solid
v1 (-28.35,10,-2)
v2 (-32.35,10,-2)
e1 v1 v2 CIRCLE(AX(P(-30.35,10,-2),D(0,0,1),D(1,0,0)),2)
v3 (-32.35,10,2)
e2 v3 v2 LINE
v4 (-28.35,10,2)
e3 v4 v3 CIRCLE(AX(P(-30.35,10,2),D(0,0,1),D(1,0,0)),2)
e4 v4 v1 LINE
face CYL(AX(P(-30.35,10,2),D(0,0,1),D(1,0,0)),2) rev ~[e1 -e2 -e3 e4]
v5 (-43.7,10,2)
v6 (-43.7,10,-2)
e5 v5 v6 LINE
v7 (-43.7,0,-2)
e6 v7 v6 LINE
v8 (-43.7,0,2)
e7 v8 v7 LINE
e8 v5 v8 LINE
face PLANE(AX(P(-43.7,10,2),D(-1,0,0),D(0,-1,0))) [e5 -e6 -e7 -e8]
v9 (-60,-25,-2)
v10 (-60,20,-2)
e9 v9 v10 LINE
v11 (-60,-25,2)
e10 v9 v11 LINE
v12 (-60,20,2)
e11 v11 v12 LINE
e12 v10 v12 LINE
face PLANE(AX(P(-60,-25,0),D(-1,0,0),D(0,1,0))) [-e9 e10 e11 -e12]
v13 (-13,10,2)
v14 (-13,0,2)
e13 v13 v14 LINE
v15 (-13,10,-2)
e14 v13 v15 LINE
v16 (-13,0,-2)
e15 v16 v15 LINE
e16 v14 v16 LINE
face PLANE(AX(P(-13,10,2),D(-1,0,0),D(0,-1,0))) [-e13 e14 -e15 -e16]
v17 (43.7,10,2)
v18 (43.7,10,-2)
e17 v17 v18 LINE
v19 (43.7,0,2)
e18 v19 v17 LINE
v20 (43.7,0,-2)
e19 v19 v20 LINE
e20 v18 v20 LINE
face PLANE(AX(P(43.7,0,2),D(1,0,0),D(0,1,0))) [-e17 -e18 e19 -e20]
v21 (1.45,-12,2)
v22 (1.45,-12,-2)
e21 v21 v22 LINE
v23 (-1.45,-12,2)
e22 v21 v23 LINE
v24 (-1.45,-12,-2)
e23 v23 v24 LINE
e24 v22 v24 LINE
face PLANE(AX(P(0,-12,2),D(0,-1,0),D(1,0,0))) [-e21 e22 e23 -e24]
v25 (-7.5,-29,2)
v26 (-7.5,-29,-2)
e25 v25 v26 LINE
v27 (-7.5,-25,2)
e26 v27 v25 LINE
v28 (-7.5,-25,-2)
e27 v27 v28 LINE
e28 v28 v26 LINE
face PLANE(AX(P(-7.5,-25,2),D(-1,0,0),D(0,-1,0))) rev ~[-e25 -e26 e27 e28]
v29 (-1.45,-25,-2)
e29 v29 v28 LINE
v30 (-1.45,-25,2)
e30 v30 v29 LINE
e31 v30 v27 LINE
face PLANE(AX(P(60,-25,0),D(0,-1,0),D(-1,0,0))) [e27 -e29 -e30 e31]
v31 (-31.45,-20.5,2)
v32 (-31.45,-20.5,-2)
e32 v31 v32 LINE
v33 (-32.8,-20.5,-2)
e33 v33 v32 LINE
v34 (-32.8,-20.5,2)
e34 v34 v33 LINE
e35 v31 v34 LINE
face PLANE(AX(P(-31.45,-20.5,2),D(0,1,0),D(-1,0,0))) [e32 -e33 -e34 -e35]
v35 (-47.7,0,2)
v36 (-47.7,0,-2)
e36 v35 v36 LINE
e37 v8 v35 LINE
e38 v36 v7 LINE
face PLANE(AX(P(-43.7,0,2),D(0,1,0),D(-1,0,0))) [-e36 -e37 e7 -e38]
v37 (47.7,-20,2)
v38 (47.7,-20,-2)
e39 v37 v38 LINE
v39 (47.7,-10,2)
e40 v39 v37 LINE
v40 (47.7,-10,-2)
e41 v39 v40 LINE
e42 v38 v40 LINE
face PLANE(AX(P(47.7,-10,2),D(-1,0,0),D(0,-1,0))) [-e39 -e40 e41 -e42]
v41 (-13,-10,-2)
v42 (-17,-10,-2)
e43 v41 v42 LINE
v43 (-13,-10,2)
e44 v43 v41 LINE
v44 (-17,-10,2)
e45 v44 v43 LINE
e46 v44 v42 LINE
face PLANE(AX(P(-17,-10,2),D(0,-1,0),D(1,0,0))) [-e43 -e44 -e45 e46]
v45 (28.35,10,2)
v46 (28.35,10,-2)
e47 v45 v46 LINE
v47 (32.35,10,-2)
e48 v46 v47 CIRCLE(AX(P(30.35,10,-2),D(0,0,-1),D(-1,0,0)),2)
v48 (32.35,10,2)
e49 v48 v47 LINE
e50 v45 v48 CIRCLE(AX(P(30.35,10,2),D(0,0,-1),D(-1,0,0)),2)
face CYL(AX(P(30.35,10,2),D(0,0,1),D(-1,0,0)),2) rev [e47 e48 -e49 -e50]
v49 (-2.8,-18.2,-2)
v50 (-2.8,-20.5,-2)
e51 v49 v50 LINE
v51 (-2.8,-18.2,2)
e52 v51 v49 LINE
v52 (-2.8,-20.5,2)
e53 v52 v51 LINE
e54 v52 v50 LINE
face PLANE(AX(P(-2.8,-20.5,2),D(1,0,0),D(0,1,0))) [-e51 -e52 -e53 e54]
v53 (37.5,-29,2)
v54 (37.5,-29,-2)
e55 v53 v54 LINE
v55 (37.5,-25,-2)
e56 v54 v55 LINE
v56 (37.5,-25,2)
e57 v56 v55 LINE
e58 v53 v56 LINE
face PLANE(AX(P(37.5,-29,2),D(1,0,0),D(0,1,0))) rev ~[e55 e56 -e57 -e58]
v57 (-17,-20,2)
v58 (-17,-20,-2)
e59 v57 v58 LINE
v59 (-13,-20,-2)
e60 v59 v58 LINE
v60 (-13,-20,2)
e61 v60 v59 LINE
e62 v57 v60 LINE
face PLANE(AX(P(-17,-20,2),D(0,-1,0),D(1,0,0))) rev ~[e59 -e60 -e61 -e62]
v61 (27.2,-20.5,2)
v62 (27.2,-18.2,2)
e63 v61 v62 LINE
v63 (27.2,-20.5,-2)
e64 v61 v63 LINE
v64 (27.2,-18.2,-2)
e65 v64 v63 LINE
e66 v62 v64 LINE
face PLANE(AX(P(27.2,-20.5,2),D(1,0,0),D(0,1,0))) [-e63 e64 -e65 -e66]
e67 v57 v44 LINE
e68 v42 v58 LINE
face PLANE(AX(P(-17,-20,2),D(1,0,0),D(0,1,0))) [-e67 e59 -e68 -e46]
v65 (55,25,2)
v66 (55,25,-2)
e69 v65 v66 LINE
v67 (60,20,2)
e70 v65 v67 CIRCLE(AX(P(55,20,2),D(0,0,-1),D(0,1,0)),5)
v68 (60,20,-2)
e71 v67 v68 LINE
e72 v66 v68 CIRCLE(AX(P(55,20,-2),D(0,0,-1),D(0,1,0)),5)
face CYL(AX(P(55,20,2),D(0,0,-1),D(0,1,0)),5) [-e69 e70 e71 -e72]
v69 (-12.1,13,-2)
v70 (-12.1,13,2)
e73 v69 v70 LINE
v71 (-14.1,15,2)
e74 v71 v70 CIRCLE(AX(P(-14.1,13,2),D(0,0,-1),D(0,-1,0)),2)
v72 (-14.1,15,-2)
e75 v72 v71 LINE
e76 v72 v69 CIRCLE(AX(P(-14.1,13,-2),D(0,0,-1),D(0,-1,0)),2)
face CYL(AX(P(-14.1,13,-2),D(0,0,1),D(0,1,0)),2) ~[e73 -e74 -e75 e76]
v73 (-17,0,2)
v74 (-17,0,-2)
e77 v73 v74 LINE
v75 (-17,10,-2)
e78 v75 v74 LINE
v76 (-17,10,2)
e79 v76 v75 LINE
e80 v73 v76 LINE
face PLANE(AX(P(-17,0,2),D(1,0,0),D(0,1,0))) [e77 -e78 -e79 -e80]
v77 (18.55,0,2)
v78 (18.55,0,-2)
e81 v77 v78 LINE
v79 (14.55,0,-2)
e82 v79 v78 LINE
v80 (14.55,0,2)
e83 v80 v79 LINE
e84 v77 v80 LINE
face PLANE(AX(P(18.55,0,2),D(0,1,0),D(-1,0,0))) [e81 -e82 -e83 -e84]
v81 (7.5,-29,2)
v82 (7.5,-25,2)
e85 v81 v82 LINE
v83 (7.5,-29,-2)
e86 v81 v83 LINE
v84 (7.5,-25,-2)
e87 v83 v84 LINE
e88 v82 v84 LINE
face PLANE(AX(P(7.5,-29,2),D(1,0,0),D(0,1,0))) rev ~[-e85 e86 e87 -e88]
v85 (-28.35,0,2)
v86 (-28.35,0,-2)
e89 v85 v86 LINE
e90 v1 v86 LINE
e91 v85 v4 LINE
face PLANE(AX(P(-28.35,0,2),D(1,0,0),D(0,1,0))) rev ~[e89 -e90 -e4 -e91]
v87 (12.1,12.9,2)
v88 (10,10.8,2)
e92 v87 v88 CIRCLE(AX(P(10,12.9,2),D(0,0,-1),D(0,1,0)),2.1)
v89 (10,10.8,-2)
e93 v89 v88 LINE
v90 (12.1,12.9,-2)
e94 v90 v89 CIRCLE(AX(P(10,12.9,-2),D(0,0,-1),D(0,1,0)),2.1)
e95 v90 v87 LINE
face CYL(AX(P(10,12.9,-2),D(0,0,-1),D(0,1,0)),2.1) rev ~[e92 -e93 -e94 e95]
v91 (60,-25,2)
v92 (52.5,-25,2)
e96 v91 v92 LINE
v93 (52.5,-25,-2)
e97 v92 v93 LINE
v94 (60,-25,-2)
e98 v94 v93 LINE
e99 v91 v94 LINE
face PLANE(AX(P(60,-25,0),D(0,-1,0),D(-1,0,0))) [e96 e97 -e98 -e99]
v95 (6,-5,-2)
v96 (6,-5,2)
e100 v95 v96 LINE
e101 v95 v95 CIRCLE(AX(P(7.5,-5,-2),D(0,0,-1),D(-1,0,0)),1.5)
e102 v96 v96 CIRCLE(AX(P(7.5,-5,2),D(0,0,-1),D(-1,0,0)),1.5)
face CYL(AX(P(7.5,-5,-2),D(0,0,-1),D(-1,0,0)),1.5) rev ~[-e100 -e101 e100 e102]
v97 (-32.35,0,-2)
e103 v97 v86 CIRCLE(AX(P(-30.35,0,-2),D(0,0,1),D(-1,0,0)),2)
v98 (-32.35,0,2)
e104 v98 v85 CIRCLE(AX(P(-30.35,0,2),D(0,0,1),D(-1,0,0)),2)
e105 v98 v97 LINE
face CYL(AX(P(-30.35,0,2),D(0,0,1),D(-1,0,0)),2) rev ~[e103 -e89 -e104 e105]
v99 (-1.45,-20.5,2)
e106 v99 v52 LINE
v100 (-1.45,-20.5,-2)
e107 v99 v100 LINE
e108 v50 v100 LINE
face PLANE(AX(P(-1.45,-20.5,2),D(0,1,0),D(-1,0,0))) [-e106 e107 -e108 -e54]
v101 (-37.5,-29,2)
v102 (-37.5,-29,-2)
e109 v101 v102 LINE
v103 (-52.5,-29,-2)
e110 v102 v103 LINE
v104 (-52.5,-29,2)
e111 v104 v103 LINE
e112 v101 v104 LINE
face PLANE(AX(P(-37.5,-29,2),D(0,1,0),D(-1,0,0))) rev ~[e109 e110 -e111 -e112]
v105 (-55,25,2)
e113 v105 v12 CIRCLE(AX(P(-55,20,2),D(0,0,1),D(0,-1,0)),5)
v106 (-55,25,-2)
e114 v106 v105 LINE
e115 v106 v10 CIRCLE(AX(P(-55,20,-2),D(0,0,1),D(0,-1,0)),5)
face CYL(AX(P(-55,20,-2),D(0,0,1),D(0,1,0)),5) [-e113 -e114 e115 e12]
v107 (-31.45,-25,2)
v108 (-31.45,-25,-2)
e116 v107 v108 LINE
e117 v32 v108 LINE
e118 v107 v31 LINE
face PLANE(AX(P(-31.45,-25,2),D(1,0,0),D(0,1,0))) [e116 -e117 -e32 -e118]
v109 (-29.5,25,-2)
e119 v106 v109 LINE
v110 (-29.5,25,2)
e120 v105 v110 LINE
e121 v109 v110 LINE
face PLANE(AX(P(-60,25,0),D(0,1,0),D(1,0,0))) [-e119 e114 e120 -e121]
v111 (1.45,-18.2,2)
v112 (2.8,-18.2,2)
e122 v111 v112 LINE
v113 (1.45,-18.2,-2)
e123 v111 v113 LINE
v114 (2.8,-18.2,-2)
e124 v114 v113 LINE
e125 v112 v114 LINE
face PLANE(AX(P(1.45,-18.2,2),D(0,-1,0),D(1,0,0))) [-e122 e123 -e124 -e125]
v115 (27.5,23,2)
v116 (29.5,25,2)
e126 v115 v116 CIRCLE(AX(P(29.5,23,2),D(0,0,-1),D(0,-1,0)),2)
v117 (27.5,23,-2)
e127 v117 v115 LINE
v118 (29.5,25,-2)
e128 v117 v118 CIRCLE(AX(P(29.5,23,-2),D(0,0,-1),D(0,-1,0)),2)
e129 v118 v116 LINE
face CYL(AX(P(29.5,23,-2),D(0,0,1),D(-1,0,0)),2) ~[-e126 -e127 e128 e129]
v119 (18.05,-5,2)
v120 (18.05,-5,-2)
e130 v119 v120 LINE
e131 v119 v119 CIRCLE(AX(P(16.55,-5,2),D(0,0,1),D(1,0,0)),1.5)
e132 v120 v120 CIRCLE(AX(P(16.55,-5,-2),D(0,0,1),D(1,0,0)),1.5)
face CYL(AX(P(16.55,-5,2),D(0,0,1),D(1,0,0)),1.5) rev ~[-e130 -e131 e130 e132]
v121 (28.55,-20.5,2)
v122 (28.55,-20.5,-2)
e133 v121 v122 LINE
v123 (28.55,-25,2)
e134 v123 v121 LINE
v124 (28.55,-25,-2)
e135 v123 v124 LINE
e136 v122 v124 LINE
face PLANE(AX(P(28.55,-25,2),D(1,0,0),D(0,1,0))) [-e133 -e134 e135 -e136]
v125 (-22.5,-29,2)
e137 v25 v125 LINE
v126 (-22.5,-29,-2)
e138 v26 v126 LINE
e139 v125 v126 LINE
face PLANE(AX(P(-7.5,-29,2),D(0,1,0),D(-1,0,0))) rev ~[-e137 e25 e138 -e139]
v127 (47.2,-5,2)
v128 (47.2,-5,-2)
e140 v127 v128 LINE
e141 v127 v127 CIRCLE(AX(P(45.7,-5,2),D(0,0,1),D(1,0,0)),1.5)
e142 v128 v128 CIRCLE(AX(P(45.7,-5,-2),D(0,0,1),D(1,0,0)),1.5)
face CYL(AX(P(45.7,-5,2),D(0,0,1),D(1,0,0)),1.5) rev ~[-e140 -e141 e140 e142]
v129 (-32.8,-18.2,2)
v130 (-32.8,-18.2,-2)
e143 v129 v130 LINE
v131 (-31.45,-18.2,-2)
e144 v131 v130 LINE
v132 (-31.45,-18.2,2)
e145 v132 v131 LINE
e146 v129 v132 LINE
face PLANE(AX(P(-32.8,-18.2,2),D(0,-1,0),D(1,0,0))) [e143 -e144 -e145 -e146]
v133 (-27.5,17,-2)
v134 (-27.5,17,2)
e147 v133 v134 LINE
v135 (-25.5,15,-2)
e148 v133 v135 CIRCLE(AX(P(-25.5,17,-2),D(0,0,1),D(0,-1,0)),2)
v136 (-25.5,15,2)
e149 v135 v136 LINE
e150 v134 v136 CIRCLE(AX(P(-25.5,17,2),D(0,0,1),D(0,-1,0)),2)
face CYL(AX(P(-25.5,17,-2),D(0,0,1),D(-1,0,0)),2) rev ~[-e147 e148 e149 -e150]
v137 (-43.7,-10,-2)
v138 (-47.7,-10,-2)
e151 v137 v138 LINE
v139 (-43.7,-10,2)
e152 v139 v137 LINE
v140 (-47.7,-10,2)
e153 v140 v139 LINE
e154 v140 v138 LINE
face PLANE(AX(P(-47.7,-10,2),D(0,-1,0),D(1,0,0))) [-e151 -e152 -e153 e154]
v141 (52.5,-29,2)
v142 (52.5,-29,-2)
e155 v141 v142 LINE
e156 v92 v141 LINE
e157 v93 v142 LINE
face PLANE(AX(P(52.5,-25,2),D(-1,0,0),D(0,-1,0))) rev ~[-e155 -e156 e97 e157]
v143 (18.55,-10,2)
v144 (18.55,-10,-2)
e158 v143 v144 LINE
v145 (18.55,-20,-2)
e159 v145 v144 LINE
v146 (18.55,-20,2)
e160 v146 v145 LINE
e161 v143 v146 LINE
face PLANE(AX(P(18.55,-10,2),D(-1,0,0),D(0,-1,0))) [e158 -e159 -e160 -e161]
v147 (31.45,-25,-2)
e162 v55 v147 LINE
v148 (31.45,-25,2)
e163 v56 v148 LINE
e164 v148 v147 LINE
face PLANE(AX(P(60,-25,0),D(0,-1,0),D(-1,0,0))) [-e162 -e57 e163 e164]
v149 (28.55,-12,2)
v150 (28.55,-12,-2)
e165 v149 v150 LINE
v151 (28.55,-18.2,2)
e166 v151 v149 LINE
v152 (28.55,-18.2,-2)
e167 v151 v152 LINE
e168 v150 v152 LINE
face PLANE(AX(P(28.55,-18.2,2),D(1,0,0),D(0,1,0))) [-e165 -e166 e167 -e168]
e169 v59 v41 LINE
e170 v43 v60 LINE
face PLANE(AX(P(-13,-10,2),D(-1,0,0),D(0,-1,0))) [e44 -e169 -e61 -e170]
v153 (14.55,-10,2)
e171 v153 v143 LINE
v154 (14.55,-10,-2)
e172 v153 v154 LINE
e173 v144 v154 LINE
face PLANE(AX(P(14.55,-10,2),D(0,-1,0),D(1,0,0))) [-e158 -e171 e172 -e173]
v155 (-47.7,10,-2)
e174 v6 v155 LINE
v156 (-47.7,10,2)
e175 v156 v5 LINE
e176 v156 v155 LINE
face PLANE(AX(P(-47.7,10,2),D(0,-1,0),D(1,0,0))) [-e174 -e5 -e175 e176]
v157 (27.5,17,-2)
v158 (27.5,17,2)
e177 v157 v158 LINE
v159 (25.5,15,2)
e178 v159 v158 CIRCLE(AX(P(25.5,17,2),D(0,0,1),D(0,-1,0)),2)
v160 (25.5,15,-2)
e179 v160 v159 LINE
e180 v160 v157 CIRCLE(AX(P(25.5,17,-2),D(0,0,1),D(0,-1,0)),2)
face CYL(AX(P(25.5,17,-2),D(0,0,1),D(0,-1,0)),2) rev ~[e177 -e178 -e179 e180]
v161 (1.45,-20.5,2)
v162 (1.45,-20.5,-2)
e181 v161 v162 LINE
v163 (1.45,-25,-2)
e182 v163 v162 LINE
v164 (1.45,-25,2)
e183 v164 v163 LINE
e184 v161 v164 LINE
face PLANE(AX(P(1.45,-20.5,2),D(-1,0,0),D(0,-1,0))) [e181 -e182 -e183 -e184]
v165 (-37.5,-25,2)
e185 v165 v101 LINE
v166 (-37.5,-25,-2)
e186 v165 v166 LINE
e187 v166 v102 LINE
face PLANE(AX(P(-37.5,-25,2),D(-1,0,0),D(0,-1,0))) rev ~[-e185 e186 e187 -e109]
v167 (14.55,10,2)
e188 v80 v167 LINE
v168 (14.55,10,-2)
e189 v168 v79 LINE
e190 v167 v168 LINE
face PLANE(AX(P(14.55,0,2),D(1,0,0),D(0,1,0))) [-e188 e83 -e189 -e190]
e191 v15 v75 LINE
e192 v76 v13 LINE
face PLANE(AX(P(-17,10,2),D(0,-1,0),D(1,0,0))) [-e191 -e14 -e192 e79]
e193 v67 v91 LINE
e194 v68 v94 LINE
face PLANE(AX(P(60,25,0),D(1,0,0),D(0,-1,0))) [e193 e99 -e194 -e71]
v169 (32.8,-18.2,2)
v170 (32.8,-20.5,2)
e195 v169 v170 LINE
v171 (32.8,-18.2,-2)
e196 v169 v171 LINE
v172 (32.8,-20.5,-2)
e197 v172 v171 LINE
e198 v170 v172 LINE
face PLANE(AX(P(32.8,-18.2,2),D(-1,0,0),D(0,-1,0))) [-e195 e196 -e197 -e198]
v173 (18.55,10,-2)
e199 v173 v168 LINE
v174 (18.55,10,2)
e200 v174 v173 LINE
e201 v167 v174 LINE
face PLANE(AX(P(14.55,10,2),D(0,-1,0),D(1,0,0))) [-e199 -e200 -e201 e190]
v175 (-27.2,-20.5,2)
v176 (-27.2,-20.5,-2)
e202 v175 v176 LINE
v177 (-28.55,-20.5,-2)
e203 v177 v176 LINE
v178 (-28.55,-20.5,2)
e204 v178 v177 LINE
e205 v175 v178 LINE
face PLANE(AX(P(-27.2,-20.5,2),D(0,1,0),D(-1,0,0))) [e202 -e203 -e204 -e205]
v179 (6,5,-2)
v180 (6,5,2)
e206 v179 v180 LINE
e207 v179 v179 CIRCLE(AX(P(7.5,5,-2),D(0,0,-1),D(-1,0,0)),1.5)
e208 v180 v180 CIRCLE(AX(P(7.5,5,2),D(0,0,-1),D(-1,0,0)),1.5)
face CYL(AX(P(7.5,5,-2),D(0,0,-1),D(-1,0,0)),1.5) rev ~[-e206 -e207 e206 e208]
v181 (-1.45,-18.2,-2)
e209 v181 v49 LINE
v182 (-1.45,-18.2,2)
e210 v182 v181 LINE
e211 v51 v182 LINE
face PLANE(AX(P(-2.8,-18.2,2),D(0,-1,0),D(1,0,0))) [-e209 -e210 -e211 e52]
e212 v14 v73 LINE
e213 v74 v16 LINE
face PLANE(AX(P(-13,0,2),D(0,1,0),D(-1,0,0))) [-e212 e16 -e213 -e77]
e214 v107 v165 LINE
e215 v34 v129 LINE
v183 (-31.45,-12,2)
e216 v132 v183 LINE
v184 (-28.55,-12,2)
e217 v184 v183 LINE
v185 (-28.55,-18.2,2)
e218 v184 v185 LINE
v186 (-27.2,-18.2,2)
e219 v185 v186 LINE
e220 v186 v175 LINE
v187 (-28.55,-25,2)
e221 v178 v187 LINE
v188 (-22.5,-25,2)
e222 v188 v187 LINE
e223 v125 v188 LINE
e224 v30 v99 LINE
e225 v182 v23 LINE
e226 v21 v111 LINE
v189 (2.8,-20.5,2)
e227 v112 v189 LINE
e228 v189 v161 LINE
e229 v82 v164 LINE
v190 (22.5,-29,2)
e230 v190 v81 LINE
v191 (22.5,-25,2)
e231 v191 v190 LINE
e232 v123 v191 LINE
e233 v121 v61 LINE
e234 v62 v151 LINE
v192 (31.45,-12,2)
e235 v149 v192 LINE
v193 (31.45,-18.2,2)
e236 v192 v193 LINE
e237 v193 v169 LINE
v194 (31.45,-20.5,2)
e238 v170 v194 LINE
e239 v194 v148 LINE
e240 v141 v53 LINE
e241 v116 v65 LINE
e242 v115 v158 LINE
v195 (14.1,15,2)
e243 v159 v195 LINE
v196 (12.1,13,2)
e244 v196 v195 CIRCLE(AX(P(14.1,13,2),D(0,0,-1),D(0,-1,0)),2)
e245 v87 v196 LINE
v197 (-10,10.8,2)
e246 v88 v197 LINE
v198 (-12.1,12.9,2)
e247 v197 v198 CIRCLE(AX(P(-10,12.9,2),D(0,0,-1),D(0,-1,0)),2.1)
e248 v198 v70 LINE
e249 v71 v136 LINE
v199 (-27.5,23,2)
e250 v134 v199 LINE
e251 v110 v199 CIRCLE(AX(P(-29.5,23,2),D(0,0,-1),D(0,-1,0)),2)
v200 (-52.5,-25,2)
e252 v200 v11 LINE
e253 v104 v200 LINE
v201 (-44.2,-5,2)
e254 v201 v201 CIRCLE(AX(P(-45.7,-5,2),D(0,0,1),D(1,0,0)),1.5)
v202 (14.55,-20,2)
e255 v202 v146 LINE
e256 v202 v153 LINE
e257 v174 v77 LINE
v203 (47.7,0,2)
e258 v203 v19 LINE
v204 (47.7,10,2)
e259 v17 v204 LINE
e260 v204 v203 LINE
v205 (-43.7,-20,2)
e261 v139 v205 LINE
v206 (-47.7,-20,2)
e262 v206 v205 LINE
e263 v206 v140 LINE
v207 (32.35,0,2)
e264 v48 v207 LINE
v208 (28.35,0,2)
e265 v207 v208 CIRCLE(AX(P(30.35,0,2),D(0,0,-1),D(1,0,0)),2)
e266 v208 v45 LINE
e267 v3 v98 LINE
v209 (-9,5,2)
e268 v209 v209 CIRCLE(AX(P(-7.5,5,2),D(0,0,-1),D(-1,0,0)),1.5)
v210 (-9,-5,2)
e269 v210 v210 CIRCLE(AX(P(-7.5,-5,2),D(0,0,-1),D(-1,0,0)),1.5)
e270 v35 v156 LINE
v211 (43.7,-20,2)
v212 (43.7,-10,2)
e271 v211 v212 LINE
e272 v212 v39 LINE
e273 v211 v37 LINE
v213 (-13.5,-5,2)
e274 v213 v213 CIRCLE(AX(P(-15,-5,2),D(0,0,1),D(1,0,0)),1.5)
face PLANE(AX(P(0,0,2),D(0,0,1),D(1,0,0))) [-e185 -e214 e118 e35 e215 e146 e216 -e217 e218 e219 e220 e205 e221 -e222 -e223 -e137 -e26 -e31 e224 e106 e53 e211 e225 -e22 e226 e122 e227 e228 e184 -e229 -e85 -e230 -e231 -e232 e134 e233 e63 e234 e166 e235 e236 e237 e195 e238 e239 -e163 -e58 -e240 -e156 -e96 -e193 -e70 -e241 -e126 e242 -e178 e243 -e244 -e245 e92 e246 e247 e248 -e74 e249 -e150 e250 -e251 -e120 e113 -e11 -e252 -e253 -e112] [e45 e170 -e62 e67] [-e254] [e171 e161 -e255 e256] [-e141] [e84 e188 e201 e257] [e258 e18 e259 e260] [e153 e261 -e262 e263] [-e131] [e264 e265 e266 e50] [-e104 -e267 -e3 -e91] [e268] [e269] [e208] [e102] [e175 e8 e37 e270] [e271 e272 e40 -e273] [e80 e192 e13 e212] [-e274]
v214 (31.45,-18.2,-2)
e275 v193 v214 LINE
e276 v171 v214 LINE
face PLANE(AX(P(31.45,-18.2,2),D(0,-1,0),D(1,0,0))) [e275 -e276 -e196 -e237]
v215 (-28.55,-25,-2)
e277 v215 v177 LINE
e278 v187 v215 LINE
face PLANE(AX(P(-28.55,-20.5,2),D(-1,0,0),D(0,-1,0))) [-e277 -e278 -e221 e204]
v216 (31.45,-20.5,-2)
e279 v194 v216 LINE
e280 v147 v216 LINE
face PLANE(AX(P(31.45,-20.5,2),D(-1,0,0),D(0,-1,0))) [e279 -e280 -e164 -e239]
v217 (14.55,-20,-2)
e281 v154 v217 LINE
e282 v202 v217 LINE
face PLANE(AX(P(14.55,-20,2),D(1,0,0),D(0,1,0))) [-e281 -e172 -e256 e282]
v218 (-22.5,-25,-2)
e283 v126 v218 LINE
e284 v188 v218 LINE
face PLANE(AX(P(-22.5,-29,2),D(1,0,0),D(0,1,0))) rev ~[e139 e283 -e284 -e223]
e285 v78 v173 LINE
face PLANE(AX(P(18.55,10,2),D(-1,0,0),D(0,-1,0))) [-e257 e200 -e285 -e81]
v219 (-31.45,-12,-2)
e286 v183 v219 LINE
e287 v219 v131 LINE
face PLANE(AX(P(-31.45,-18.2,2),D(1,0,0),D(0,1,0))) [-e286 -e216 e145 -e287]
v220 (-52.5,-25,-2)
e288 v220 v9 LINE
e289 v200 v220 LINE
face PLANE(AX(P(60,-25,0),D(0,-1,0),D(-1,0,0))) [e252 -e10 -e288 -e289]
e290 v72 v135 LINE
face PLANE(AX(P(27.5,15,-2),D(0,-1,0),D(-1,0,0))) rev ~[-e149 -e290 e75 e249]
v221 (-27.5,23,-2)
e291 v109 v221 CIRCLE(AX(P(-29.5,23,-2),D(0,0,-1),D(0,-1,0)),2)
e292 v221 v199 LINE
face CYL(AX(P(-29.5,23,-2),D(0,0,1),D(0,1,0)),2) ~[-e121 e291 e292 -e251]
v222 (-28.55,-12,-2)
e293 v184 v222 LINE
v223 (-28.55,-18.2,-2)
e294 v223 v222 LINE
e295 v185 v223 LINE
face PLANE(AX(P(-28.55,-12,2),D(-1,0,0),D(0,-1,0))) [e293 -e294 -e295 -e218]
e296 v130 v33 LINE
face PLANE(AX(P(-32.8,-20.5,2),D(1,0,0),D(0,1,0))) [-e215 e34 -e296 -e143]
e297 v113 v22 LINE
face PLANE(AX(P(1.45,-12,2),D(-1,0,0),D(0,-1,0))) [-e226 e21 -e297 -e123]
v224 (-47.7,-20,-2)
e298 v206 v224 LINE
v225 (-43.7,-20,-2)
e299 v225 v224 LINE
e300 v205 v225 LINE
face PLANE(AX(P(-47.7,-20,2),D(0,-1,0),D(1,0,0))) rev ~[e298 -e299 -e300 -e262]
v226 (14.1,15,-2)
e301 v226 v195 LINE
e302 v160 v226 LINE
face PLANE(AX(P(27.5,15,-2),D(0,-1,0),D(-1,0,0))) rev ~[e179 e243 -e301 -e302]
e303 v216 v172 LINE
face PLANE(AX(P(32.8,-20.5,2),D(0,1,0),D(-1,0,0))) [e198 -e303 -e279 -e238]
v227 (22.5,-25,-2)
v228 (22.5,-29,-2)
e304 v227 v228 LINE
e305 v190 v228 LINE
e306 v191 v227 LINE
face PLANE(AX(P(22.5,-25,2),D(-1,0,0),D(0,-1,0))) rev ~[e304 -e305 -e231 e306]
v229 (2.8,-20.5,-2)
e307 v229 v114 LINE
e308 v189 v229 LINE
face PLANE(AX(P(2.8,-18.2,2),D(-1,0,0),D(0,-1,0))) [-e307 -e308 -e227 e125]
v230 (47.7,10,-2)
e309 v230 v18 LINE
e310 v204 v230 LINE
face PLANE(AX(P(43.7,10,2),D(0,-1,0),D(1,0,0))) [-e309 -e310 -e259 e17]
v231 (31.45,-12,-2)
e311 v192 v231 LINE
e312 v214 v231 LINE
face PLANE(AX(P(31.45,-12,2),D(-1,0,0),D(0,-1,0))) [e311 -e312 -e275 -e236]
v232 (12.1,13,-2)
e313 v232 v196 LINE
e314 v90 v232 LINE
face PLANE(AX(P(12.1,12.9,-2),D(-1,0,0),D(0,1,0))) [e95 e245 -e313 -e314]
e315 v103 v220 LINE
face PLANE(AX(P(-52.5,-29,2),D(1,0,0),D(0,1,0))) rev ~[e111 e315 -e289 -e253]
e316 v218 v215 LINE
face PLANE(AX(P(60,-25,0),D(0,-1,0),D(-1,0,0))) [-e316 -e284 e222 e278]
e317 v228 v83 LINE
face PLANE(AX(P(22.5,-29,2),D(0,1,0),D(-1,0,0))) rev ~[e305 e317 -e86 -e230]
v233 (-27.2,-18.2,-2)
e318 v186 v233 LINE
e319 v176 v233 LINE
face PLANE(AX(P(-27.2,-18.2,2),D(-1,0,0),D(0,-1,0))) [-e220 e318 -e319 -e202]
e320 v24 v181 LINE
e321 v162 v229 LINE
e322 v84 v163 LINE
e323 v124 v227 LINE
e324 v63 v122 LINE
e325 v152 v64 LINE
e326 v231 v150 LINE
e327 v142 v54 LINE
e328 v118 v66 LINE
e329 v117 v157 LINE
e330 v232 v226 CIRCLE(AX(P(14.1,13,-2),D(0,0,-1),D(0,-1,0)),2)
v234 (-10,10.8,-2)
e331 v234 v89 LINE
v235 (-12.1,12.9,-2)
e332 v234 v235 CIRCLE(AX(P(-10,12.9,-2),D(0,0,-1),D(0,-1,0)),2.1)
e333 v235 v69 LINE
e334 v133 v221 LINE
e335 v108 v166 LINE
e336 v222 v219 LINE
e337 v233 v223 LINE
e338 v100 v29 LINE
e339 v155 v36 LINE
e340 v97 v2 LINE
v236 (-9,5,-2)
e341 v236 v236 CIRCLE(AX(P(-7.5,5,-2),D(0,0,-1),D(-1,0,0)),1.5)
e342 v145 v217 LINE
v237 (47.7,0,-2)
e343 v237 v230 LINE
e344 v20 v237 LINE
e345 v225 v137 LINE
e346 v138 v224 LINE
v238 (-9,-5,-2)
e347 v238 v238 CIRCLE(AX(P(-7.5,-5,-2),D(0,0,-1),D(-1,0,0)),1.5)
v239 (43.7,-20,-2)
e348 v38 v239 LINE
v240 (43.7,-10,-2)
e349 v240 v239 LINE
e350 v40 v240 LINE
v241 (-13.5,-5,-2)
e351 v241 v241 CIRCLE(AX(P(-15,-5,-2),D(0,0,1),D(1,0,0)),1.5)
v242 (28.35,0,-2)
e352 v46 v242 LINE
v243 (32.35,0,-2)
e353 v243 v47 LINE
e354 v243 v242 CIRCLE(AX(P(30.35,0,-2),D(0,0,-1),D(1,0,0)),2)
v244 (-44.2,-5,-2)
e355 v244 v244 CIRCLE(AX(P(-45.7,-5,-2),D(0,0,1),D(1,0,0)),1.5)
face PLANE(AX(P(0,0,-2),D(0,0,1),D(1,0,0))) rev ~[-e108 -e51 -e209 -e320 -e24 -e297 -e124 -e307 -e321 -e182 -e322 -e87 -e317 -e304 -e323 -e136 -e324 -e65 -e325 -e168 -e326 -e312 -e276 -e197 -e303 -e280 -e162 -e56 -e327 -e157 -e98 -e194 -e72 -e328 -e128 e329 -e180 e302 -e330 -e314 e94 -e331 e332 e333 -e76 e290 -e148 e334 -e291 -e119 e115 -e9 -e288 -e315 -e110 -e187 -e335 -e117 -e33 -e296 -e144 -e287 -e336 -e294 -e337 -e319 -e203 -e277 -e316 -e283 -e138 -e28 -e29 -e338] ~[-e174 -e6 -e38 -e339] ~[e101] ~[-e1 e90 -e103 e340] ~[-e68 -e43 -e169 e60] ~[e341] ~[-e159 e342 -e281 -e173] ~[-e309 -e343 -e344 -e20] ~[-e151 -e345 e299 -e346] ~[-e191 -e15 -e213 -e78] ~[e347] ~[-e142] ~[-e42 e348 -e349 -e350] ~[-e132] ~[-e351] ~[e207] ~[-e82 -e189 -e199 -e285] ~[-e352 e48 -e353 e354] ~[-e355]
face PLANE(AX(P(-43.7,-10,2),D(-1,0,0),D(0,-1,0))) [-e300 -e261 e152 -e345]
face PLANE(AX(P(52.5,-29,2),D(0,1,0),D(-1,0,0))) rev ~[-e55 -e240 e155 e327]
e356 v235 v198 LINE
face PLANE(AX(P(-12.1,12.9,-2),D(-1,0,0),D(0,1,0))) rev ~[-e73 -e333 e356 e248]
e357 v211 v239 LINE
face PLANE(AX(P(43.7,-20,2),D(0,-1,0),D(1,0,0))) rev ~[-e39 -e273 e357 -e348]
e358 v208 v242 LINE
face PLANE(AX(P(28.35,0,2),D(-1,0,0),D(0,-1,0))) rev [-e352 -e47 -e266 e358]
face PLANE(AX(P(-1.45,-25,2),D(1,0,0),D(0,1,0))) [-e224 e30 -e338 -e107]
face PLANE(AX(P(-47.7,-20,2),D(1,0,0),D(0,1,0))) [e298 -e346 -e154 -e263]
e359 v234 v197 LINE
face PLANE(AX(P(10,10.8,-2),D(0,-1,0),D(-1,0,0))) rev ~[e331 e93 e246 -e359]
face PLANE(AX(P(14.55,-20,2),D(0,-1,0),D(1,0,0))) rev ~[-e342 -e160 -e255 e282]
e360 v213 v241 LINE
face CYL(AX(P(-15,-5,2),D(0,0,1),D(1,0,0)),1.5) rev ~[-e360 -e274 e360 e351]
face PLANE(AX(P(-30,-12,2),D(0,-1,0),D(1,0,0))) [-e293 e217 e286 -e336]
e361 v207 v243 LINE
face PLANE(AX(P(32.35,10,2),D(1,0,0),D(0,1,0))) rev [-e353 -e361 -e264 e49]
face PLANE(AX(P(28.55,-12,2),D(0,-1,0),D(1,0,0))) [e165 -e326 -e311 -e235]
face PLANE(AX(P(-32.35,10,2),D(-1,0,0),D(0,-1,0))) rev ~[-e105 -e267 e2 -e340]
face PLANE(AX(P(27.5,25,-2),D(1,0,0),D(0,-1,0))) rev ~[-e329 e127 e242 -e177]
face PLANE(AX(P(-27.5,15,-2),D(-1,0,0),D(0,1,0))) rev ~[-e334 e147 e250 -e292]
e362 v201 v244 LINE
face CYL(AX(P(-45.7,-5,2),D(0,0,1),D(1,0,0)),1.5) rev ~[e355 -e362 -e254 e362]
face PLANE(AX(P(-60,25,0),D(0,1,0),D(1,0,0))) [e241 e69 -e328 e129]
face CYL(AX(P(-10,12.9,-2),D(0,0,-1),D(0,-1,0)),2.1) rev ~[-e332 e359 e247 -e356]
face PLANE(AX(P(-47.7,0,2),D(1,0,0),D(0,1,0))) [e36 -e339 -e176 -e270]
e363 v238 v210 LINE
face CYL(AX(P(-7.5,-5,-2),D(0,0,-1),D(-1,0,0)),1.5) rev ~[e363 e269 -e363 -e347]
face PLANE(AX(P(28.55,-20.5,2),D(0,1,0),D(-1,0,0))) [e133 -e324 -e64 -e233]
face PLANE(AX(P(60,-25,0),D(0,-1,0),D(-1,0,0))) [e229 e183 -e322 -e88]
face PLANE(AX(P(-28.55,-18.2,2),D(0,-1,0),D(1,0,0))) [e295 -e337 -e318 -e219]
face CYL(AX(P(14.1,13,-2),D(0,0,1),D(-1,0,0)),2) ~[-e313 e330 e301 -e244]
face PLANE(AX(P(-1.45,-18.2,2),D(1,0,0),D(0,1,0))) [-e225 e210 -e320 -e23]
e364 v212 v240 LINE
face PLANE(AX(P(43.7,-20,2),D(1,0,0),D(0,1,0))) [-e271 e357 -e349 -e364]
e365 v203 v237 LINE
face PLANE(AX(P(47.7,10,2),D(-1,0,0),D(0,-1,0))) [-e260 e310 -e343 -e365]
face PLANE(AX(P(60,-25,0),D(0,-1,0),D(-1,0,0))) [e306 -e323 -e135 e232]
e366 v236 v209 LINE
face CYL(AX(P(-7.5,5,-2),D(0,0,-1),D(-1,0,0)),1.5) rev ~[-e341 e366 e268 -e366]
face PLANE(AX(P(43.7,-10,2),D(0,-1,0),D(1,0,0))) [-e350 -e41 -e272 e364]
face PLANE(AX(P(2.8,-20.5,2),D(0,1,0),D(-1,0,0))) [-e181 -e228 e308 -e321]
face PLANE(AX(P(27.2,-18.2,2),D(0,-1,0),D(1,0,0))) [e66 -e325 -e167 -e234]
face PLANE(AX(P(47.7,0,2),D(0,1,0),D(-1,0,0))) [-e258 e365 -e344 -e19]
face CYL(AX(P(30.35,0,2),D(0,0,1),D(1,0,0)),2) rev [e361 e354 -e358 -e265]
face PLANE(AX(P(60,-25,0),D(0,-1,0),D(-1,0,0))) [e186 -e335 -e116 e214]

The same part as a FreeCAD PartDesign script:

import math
import FreeCAD as App
import Part
import Sketcher
Q = App.Units.Quantity


def edges_at(feature, points):
    """Names of the edges that pass closest to the given points."""
    edges = feature.Shape.Edges
    near = lambda p: min(range(len(edges)), key=lambda i: edges[i].distToShape(Part.Vertex(*p))[0])
    return sorted({f"Edge{near(p) + 1}" for p in points})


def add_polygon(sketch, points):
    """Adds a closed chain of lines whose ends are joined by coincident constraints."""
    first, n = sketch.GeometryCount, len(points)
    for a, b in zip(points, points[1:] + points[:1]):
        sketch.addGeometry(Part.LineSegment(App.Vector(*a, 0), App.Vector(*b, 0)), False)
    for i in range(n):
        sketch.addConstraint(Sketcher.Constraint("Coincident", first + i, 2, first + (i + 1) % n, 1))

doc = App.newDocument("Part")
body = doc.addObject("PartDesign::Body", "Body")

sketch1 = doc.addObject("Sketcher::SketchObject", "Sketch")
body.addObject(sketch1)
sketch1.AttachmentSupport = (doc.XY_Plane, [""])
sketch1.MapMode = "FlatFace"
add_polygon(sketch1, [(60, 25), (-60, 25), (-60, -25), (60, -25)])
sketch1.addConstraint([
    Sketcher.Constraint("Horizontal", 0),
    Sketcher.Constraint("Vertical", 1),
    Sketcher.Constraint("Horizontal", 2),
    Sketcher.Constraint("Vertical", 3),
    Sketcher.Constraint("Symmetric", 0, 2, 2, 2, -1, 1),
    Sketcher.Constraint("DistanceX", 0, 2, 0, 1, Q("120 mm")),
    Sketcher.Constraint("DistanceY", 1, 2, 1, 1, Q("50 mm")),
])
pad1 = doc.addObject("PartDesign::Pad", "Pad")
body.addObject(pad1)
pad1.Profile = sketch1
pad1.Length = 4
pad1.Midplane = True

sketch2 = doc.addObject("Sketcher::SketchObject", "Sketch001")
body.addObject(sketch2)
sketch2.AttachmentSupport = (doc.XY_Plane, [""])
sketch2.MapMode = "FlatFace"
sketch2.AttachmentOffset = App.Placement(App.Vector(0, 0, 2), App.Rotation())
add_polygon(sketch2, [(52.5, -25), (37.5, -25), (37.5, -29), (52.5, -29)])
add_polygon(sketch2, [(22.5, -25), (7.5, -25), (7.5, -29), (22.5, -29)])
add_polygon(sketch2, [(-7.5, -25), (-22.5, -25), (-22.5, -29), (-7.5, -29)])
add_polygon(sketch2, [(-37.5, -25), (-52.5, -25), (-52.5, -29), (-37.5, -29)])
sketch2.addConstraint([
    Sketcher.Constraint("Horizontal", 0),
    Sketcher.Constraint("Vertical", 1),
    Sketcher.Constraint("Horizontal", 2),
    Sketcher.Constraint("Vertical", 3),
    Sketcher.Constraint("Horizontal", 4),
    Sketcher.Constraint("Vertical", 5),
    Sketcher.Constraint("Horizontal", 6),
    Sketcher.Constraint("Vertical", 7),
    Sketcher.Constraint("Horizontal", 8),
    Sketcher.Constraint("Vertical", 9),
    Sketcher.Constraint("Horizontal", 10),
    Sketcher.Constraint("Vertical", 11),
    Sketcher.Constraint("Horizontal", 12),
    Sketcher.Constraint("Vertical", 13),
    Sketcher.Constraint("Horizontal", 14),
    Sketcher.Constraint("Vertical", 15),
    Sketcher.Constraint("Symmetric", 7, 2, 8, 2, -2),
    Sketcher.Constraint("Symmetric", 5, 2, 10, 2, -2),
    Sketcher.Constraint("Symmetric", 3, 2, 12, 2, -2),
    Sketcher.Constraint("Symmetric", 1, 2, 14, 2, -2),
    Sketcher.Constraint("Horizontal", 3, 2, 4, 2),
    Sketcher.Constraint("Horizontal", 2, 2, 5, 2),
    Sketcher.Constraint("Equal", 2, 4),
    Sketcher.Constraint("DistanceX", 0, 2, 0, 1, Q("15 mm")),
    Sketcher.Constraint("DistanceY", 1, 2, 1, 1, Q("4 mm")),
    Sketcher.Constraint("DistanceX", 4, 2, 0, 2, Q("30 mm")),
    Sketcher.Constraint("DistanceX", 8, 2, 4, 2, Q("30 mm")),
    Sketcher.Constraint("DistanceY", 0, 2, -1, 1, Q("25 mm")),
])
pad2 = doc.addObject("PartDesign::Pad", "Pad001")
body.addObject(pad2)
pad2.Profile = sketch2
pad2.Length = 4
pad2.Reversed = True

sketch3 = doc.addObject("Sketcher::SketchObject", "Sketch002")
body.addObject(sketch3)
sketch3.AttachmentSupport = (doc.XY_Plane, [""])
sketch3.MapMode = "FlatFace"
sketch3.AttachmentOffset = App.Placement(App.Vector(0, 0, 2), App.Rotation())
add_polygon(sketch3, [(-28.55, -25), (-28.55, -20.5), (-27.2, -20.5), (-27.2, -18.2), (-28.55, -18.2), (-28.55, -12), (-31.45, -12), (-31.45, -18.2), (-32.8, -18.2), (-32.8, -20.5), (-31.45, -20.5), (-31.45, -25)])
add_polygon(sketch3, [(1.45, -25), (1.45, -20.5), (2.8, -20.5), (2.8, -18.2), (1.45, -18.2), (1.45, -12), (-1.45, -12), (-1.45, -18.2), (-2.8, -18.2), (-2.8, -20.5), (-1.45, -20.5), (-1.45, -25)])
add_polygon(sketch3, [(28.55, -25), (31.45, -25), (31.45, -20.5), (32.8, -20.5), (32.8, -18.2), (31.45, -18.2), (31.45, -12), (28.55, -12), (28.55, -18.2), (27.2, -18.2), (27.2, -20.5), (28.55, -20.5)])
sketch3.addConstraint([
    Sketcher.Constraint("Vertical", 0),
    Sketcher.Constraint("Horizontal", 1),
    Sketcher.Constraint("Vertical", 2),
    Sketcher.Constraint("Horizontal", 3),
    Sketcher.Constraint("Vertical", 4),
    Sketcher.Constraint("Horizontal", 5),
    Sketcher.Constraint("Vertical", 6),
    Sketcher.Constraint("Horizontal", 7),
    Sketcher.Constraint("Vertical", 8),
    Sketcher.Constraint("Horizontal", 9),
    Sketcher.Constraint("Vertical", 10),
    Sketcher.Constraint("Horizontal", 11),
    Sketcher.Constraint("Vertical", 12),
    Sketcher.Constraint("Horizontal", 13),
    Sketcher.Constraint("Vertical", 14),
    Sketcher.Constraint("Horizontal", 15),
    Sketcher.Constraint("Vertical", 16),
    Sketcher.Constraint("Horizontal", 17),
    Sketcher.Constraint("Vertical", 18),
    Sketcher.Constraint("Horizontal", 19),
    Sketcher.Constraint("Vertical", 20),
    Sketcher.Constraint("Horizontal", 21),
    Sketcher.Constraint("Vertical", 22),
    Sketcher.Constraint("Horizontal", 23),
    Sketcher.Constraint("Horizontal", 24),
    Sketcher.Constraint("Vertical", 25),
    Sketcher.Constraint("Horizontal", 26),
    Sketcher.Constraint("Vertical", 27),
    Sketcher.Constraint("Horizontal", 28),
    Sketcher.Constraint("Vertical", 29),
    Sketcher.Constraint("Horizontal", 30),
    Sketcher.Constraint("Vertical", 31),
    Sketcher.Constraint("Horizontal", 32),
    Sketcher.Constraint("Vertical", 33),
    Sketcher.Constraint("Horizontal", 34),
    Sketcher.Constraint("Vertical", 35),
    Sketcher.Constraint("Symmetric", 15, 2, 18, 2, -2),
    Sketcher.Constraint("Symmetric", 13, 2, 20, 2, -2),
    Sketcher.Constraint("Symmetric", 10, 2, 24, 2, -2),
    Sketcher.Constraint("Symmetric", 8, 2, 26, 2, -2),
    Sketcher.Constraint("Symmetric", 6, 2, 28, 2, -2),
    Sketcher.Constraint("Symmetric", 4, 2, 30, 2, -2),
    Sketcher.Constraint("Symmetric", 2, 2, 32, 2, -2),
    Sketcher.Constraint("Symmetric", 0, 2, 34, 2, -2),
    Sketcher.Constraint("Horizontal", 3, 2, 6, 2),
    Sketcher.Constraint("Horizontal", 1, 2, 8, 2),
    Sketcher.Constraint("Horizontal", 9, 2, 12, 2),
    Sketcher.Constraint("Horizontal", 7, 2, 14, 2),
    Sketcher.Constraint("Horizontal", 5, 2, 16, 2),
    Sketcher.Constraint("Horizontal", 11, 2, 22, 2),
    Sketcher.Constraint("Vertical", 0, 2, 3, 2),
    Sketcher.Constraint("Vertical", 6, 2, 9, 2),
    Sketcher.Constraint("Vertical", 12, 2, 15, 2),
    Sketcher.Constraint("Vertical", 18, 2, 21, 2),
    Sketcher.Constraint("Equal", 3, 7),
    Sketcher.Constraint("Equal", 9, 13),
    Sketcher.Constraint("Equal", 11, 17),
    Sketcher.Constraint("DistanceX", 5, 2, 5, 1, Q("2.9 mm")),
    Sketcher.Constraint("DistanceY", 0, 1, 0, 2, Q("4.5 mm")),
    Sketcher.Constraint("DistanceY", 2, 1, 2, 2, Q("2.3 mm")),
    Sketcher.Constraint("DistanceY", 24, 2, 29, 2, Q("13 mm")),
    Sketcher.Constraint("DistanceX", 7, 2, 2, 2, Q("5.6 mm")),
    Sketcher.Constraint("DistanceY", 4, 2, -1, 1, Q("12 mm")),
    Sketcher.Constraint("DistanceX", 0, 2, 12, 2, Q("30 mm")),
])
pocket1 = doc.addObject("PartDesign::Pocket", "Pocket")
body.addObject(pocket1)
pocket1.Profile = sketch3
pocket1.Type = "UpToFirst"

sketch4 = doc.addObject("Sketcher::SketchObject", "Sketch003")
body.addObject(sketch4)
sketch4.AttachmentSupport = (doc.XY_Plane, [""])
sketch4.MapMode = "FlatFace"
sketch4.AttachmentOffset = App.Placement(App.Vector(0, 0, 2), App.Rotation())
add_polygon(sketch4, [(-47.7, 0), (-43.7, 0), (-43.7, 10), (-47.7, 10)])
add_polygon(sketch4, [(-47.7, -10), (-47.7, -20), (-43.7, -20), (-43.7, -10)])
add_polygon(sketch4, [(43.7, 0), (47.7, 0), (47.7, 10), (43.7, 10)])
add_polygon(sketch4, [(43.7, -10), (43.7, -20), (47.7, -20), (47.7, -10)])
add_polygon(sketch4, [(-17, 0), (-13, 0), (-13, 10), (-17, 10)])
add_polygon(sketch4, [(-17, -10), (-17, -20), (-13, -20), (-13, -10)])
add_polygon(sketch4, [(14.55, -10), (14.55, -20), (18.55, -20), (18.55, -10)])
add_polygon(sketch4, [(14.55, 0), (18.55, 0), (18.55, 10), (14.55, 10)])
sketch4.addConstraint([
    Sketcher.Constraint("Horizontal", 0),
    Sketcher.Constraint("Vertical", 1),
    Sketcher.Constraint("Horizontal", 2),
    Sketcher.Constraint("Vertical", 3),
    Sketcher.Constraint("Vertical", 4),
    Sketcher.Constraint("Horizontal", 5),
    Sketcher.Constraint("Vertical", 6),
    Sketcher.Constraint("Horizontal", 7),
    Sketcher.Constraint("Horizontal", 8),
    Sketcher.Constraint("Vertical", 9),
    Sketcher.Constraint("Horizontal", 10),
    Sketcher.Constraint("Vertical", 11),
    Sketcher.Constraint("Vertical", 12),
    Sketcher.Constraint("Horizontal", 13),
    Sketcher.Constraint("Vertical", 14),
    Sketcher.Constraint("Horizontal", 15),
    Sketcher.Constraint("Horizontal", 16),
    Sketcher.Constraint("Vertical", 17),
    Sketcher.Constraint("Horizontal", 18),
    Sketcher.Constraint("Vertical", 19),
    Sketcher.Constraint("Vertical", 20),
    Sketcher.Constraint("Horizontal", 21),
    Sketcher.Constraint("Vertical", 22),
    Sketcher.Constraint("Horizontal", 23),
    Sketcher.Constraint("Vertical", 24),
    Sketcher.Constraint("Horizontal", 25),
    Sketcher.Constraint("Vertical", 26),
    Sketcher.Constraint("Horizontal", 27),
    Sketcher.Constraint("Horizontal", 28),
    Sketcher.Constraint("Vertical", 29),
    Sketcher.Constraint("Horizontal", 30),
    Sketcher.Constraint("Vertical", 31),
    Sketcher.Constraint("Symmetric", 3, 2, 8, 2, -1, 1),
    Sketcher.Constraint("Symmetric", 7, 2, 9, 2, -1, 1),
    Sketcher.Constraint("Symmetric", 2, 2, 14, 2, -1, 1),
    Sketcher.Constraint("Symmetric", 1, 2, 10, 2, -2),
    Sketcher.Constraint("Symmetric", 5, 2, 12, 2, -2),
    Sketcher.Constraint("Symmetric", 17, 2, 22, 2, -1),
    Sketcher.Constraint("Symmetric", 26, 2, 29, 2, -1),
    Sketcher.Constraint("PointOnObject", 0, 2, -1),
    Sketcher.Constraint("PointOnObject", 16, 2, -1),
    Sketcher.Constraint("PointOnObject", 28, 2, -1),
    Sketcher.Constraint("Horizontal", 10, 2, 17, 2),
    Sketcher.Constraint("Horizontal", 13, 2, 20, 2),
    Sketcher.Constraint("Horizontal", 21, 2, 24, 2),
    Sketcher.Constraint("Horizontal", 23, 2, 26, 2),
    Sketcher.Constraint("Vertical", 1, 2, 5, 2),
    Sketcher.Constraint("Vertical", 19, 2, 20, 2),
    Sketcher.Constraint("Vertical", 27, 2, 30, 2),
    Sketcher.Constraint("Equal", 15, 16),
    Sketcher.Constraint("Equal", 23, 25),
    Sketcher.Constraint("Equal", 3, 4),
    Sketcher.Constraint("DistanceX", 0, 1, 0, 2, Q("4 mm")),
    Sketcher.Constraint("DistanceY", 1, 1, 1, 2, Q("10 mm")),
    Sketcher.Constraint("DistanceX", 16, 2, -1, 1, Q("13 mm")),
    Sketcher.Constraint("DistanceX", 0, 2, -1, 1, Q("43.7 mm")),
    Sketcher.Constraint("DistanceX", -1, 1, 24, 2, Q("14.55 mm")),
])
pocket2 = doc.addObject("PartDesign::Pocket", "Pocket001")
body.addObject(pocket2)
pocket2.Profile = sketch4
pocket2.Type = "UpToFirst"

sketch5 = doc.addObject("Sketcher::SketchObject", "Sketch004")
body.addObject(sketch5)
sketch5.AttachmentSupport = (doc.XY_Plane, [""])
sketch5.MapMode = "FlatFace"
sketch5.AttachmentOffset = App.Placement(App.Vector(0, 0, 2), App.Rotation())
sketch5.addGeometry([
    Part.Circle(App.Vector(-45.7, -5, 0), App.Vector(0, 0, 1), 1.5),
    Part.Circle(App.Vector(45.7, -5, 0), App.Vector(0, 0, 1), 1.5),
    Part.Circle(App.Vector(-15, -5, 0), App.Vector(0, 0, 1), 1.5),
    Part.Circle(App.Vector(16.55, -5, 0), App.Vector(0, 0, 1), 1.5),
], False)
sketch5.addConstraint([
    Sketcher.Constraint("Equal", 0, 1),
    Sketcher.Constraint("Equal", 1, 2),
    Sketcher.Constraint("Equal", 2, 3),
    Sketcher.Constraint("Symmetric", 0, 3, 1, 3, -2),
    Sketcher.Constraint("Horizontal", 1, 3, 2, 3),
    Sketcher.Constraint("Horizontal", 2, 3, 3, 3),
    Sketcher.Constraint("Diameter", 0, Q("3 mm")),
    Sketcher.Constraint("DistanceY", 0, 3, -1, 1, Q("5 mm")),
    Sketcher.Constraint("DistanceX", 2, 3, -1, 1, Q("15 mm")),
    Sketcher.Constraint("DistanceX", 0, 3, -1, 1, Q("45.7 mm")),
    Sketcher.Constraint("DistanceX", -1, 1, 3, 3, Q("16.55 mm")),
])
pocket3 = doc.addObject("PartDesign::Pocket", "Pocket002")
body.addObject(pocket3)
pocket3.Profile = sketch5
pocket3.Type = "UpToFirst"

sketch6 = doc.addObject("Sketcher::SketchObject", "Sketch005")
body.addObject(sketch6)
sketch6.AttachmentSupport = (doc.XY_Plane, [""])
sketch6.MapMode = "FlatFace"
sketch6.AttachmentOffset = App.Placement(App.Vector(0, 0, -2), App.Rotation())
add_polygon(sketch6, [(-27.5, 15), (-27.5, 25), (27.5, 25), (27.5, 15)])
sketch6.addConstraint([
    Sketcher.Constraint("Vertical", 0),
    Sketcher.Constraint("Horizontal", 1),
    Sketcher.Constraint("Vertical", 2),
    Sketcher.Constraint("Horizontal", 3),
    Sketcher.Constraint("DistanceX", 1, 1, 1, 2, Q("55 mm")),
    Sketcher.Constraint("DistanceY", 0, 1, 0, 2, Q("10 mm")),
    Sketcher.Constraint("DistanceY", -1, 1, 0, 2, Q("25 mm")),
    Sketcher.Constraint("DistanceX", 0, 2, -1, 1, Q("27.5 mm")),
])
pocket4 = doc.addObject("PartDesign::Pocket", "Pocket003")
body.addObject(pocket4)
pocket4.Profile = sketch6
pocket4.Type = "UpToFirst"
pocket4.Reversed = True
doc.recompute()

fillet = doc.addObject("PartDesign::Fillet", "Fillet")
body.addObject(fillet)
fillet.Base = (pocket4, edges_at(pocket4, [
    (27.5, 15, 0),
    (27.5, 25, 0),
    (-27.5, 25, 0),
    (-27.5, 15, 0),
]))
fillet.Radius = 2

sketch7 = doc.addObject("Sketcher::SketchObject", "Sketch006")
body.addObject(sketch7)
sketch7.AttachmentSupport = (doc.XY_Plane, [""])
sketch7.MapMode = "FlatFace"
sketch7.AttachmentOffset = App.Placement(App.Vector(0, 0, -2), App.Rotation())
sketch7.addGeometry([
    Part.Circle(App.Vector(7.5, 5, 0), App.Vector(0, 0, 1), 1.5),
    Part.Circle(App.Vector(-7.5, 5, 0), App.Vector(0, 0, 1), 1.5),
    Part.Circle(App.Vector(-7.5, -5, 0), App.Vector(0, 0, 1), 1.5),
    Part.Circle(App.Vector(7.5, -5, 0), App.Vector(0, 0, 1), 1.5),
], False)
sketch7.addConstraint([
    Sketcher.Constraint("Equal", 0, 1),
    Sketcher.Constraint("Equal", 1, 2),
    Sketcher.Constraint("Equal", 2, 3),
    Sketcher.Constraint("Symmetric", 0, 3, 2, 3, -1, 1),
    Sketcher.Constraint("Symmetric", 1, 3, 3, 3, -1, 1),
    Sketcher.Constraint("Symmetric", 0, 3, 1, 3, -2),
    Sketcher.Constraint("Diameter", 0, Q("3 mm")),
    Sketcher.Constraint("DistanceX", 1, 3, 0, 3, Q("15 mm")),
    Sketcher.Constraint("DistanceY", 2, 3, 1, 3, Q("10 mm")),
])
pocket5 = doc.addObject("PartDesign::Pocket", "Pocket004")
body.addObject(pocket5)
pocket5.Profile = sketch7
pocket5.Type = "UpToFirst"
pocket5.Reversed = True
doc.recompute()

fillet2 = doc.addObject("PartDesign::Fillet", "Fillet001")
body.addObject(fillet2)
fillet2.Base = (pocket5, edges_at(pocket5, [(60, 25, 0), (-60, 25, 0)]))
fillet2.Radius = 5

sketch8 = doc.addObject("Sketcher::SketchObject", "Sketch007")
body.addObject(sketch8)
sketch8.AttachmentSupport = (doc.XY_Plane, [""])
sketch8.MapMode = "FlatFace"
sketch8.AttachmentOffset = App.Placement(App.Vector(0, 0, 2), App.Rotation())
sketch8.addGeometry([
    Part.ArcOfCircle(Part.Circle(App.Vector(-30.35, 0, 0), App.Vector(0, 0, 1), 2), math.radians(180), math.radians(360)),
    Part.LineSegment(App.Vector(-28.35, 0, 0), App.Vector(-28.35, 10, 0)),
    Part.ArcOfCircle(Part.Circle(App.Vector(-30.35, 10, 0), App.Vector(0, 0, 1), 2), math.radians(0), math.radians(180)),
    Part.LineSegment(App.Vector(-32.35, 10, 0), App.Vector(-32.35, 0, 0)),
], False)
sketch8.addConstraint([
    Sketcher.Constraint("Tangent", 0, 2, 1, 1),
    Sketcher.Constraint("Tangent", 1, 2, 2, 1),
    Sketcher.Constraint("Tangent", 2, 2, 3, 1),
    Sketcher.Constraint("Tangent", 3, 2, 0, 1),
    Sketcher.Constraint("Vertical", 1),
    Sketcher.Constraint("Vertical", 3),
    Sketcher.Constraint("PointOnObject", 0, 3, -1),
    Sketcher.Constraint("Radius", 0, Q("2 mm")),
    Sketcher.Constraint("DistanceY", 1, 1, 1, 2, Q("10 mm")),
    Sketcher.Constraint("DistanceX", 0, 3, -1, 1, Q("30.35 mm")),
])
pocket6 = doc.addObject("PartDesign::Pocket", "Pocket005")
body.addObject(pocket6)
pocket6.Profile = sketch8
pocket6.Type = "UpToFirst"
doc.recompute()

mirrored = doc.addObject("PartDesign::Mirrored", "Mirrored")
body.addObject(mirrored)
mirrored.Originals = [pocket6]
mirrored.MirrorPlane = (doc.YZ_Plane, [""])
body.Tip = mirrored

sketch9 = doc.addObject("Sketcher::SketchObject", "Sketch008")
body.addObject(sketch9)
sketch9.AttachmentSupport = (doc.XY_Plane, [""])
sketch9.MapMode = "FlatFace"
sketch9.AttachmentOffset = App.Placement(App.Vector(0, 0, -2), App.Rotation())
sketch9.addGeometry([
    Part.ArcOfCircle(Part.Circle(App.Vector(10, 12.9, 0), App.Vector(0, 0, 1), 2.1), math.radians(-90), math.radians(0)),
    Part.LineSegment(App.Vector(10, 10.8, 0), App.Vector(-10, 10.8, 0)),
    Part.ArcOfCircle(Part.Circle(App.Vector(-10, 12.9, 0), App.Vector(0, 0, 1), 2.1), math.radians(180), math.radians(270)),
    Part.LineSegment(App.Vector(-12.1, 12.9, 0), App.Vector(-12.1, 15, 0)),
    Part.LineSegment(App.Vector(-12.1, 15, 0), App.Vector(12.1, 15, 0)),
    Part.LineSegment(App.Vector(12.1, 15, 0), App.Vector(12.1, 12.9, 0)),
], False)
sketch9.addConstraint([
    Sketcher.Constraint("Tangent", 0, 1, 1, 1),
    Sketcher.Constraint("Tangent", 1, 2, 2, 2),
    Sketcher.Constraint("Tangent", 2, 1, 3, 1),
    Sketcher.Constraint("Coincident", 3, 2, 4, 1),
    Sketcher.Constraint("Coincident", 4, 2, 5, 1),
    Sketcher.Constraint("Tangent", 5, 2, 0, 2),
    Sketcher.Constraint("Horizontal", 1),
    Sketcher.Constraint("Vertical", 3),
    Sketcher.Constraint("Horizontal", 4),
    Sketcher.Constraint("Vertical", 5),
    Sketcher.Constraint("Equal", 0, 2),
    Sketcher.Constraint("Radius", 0, Q("2.1 mm")),
    Sketcher.Constraint("DistanceX", 1, 2, 1, 1, Q("20 mm")),
    Sketcher.Constraint("DistanceY", 3, 1, 3, 2, Q("2.1 mm")),
    Sketcher.Constraint("DistanceX", -1, 1, 0, 3, Q("10 mm")),
    Sketcher.Constraint("DistanceY", -1, 1, 3, 2, Q("15 mm")),
])
pocket7 = doc.addObject("PartDesign::Pocket", "Pocket006")
body.addObject(pocket7)
pocket7.Profile = sketch9
pocket7.Type = "UpToFirst"
pocket7.Reversed = True
doc.recompute()

fillet3 = doc.addObject("PartDesign::Fillet", "Fillet002")
body.addObject(fillet3)
fillet3.Base = (pocket7, edges_at(pocket7, [(12.1, 15, 0), (-12.1, 15, 0)]))
fillet3.Radius = 2

doc.recompute()
